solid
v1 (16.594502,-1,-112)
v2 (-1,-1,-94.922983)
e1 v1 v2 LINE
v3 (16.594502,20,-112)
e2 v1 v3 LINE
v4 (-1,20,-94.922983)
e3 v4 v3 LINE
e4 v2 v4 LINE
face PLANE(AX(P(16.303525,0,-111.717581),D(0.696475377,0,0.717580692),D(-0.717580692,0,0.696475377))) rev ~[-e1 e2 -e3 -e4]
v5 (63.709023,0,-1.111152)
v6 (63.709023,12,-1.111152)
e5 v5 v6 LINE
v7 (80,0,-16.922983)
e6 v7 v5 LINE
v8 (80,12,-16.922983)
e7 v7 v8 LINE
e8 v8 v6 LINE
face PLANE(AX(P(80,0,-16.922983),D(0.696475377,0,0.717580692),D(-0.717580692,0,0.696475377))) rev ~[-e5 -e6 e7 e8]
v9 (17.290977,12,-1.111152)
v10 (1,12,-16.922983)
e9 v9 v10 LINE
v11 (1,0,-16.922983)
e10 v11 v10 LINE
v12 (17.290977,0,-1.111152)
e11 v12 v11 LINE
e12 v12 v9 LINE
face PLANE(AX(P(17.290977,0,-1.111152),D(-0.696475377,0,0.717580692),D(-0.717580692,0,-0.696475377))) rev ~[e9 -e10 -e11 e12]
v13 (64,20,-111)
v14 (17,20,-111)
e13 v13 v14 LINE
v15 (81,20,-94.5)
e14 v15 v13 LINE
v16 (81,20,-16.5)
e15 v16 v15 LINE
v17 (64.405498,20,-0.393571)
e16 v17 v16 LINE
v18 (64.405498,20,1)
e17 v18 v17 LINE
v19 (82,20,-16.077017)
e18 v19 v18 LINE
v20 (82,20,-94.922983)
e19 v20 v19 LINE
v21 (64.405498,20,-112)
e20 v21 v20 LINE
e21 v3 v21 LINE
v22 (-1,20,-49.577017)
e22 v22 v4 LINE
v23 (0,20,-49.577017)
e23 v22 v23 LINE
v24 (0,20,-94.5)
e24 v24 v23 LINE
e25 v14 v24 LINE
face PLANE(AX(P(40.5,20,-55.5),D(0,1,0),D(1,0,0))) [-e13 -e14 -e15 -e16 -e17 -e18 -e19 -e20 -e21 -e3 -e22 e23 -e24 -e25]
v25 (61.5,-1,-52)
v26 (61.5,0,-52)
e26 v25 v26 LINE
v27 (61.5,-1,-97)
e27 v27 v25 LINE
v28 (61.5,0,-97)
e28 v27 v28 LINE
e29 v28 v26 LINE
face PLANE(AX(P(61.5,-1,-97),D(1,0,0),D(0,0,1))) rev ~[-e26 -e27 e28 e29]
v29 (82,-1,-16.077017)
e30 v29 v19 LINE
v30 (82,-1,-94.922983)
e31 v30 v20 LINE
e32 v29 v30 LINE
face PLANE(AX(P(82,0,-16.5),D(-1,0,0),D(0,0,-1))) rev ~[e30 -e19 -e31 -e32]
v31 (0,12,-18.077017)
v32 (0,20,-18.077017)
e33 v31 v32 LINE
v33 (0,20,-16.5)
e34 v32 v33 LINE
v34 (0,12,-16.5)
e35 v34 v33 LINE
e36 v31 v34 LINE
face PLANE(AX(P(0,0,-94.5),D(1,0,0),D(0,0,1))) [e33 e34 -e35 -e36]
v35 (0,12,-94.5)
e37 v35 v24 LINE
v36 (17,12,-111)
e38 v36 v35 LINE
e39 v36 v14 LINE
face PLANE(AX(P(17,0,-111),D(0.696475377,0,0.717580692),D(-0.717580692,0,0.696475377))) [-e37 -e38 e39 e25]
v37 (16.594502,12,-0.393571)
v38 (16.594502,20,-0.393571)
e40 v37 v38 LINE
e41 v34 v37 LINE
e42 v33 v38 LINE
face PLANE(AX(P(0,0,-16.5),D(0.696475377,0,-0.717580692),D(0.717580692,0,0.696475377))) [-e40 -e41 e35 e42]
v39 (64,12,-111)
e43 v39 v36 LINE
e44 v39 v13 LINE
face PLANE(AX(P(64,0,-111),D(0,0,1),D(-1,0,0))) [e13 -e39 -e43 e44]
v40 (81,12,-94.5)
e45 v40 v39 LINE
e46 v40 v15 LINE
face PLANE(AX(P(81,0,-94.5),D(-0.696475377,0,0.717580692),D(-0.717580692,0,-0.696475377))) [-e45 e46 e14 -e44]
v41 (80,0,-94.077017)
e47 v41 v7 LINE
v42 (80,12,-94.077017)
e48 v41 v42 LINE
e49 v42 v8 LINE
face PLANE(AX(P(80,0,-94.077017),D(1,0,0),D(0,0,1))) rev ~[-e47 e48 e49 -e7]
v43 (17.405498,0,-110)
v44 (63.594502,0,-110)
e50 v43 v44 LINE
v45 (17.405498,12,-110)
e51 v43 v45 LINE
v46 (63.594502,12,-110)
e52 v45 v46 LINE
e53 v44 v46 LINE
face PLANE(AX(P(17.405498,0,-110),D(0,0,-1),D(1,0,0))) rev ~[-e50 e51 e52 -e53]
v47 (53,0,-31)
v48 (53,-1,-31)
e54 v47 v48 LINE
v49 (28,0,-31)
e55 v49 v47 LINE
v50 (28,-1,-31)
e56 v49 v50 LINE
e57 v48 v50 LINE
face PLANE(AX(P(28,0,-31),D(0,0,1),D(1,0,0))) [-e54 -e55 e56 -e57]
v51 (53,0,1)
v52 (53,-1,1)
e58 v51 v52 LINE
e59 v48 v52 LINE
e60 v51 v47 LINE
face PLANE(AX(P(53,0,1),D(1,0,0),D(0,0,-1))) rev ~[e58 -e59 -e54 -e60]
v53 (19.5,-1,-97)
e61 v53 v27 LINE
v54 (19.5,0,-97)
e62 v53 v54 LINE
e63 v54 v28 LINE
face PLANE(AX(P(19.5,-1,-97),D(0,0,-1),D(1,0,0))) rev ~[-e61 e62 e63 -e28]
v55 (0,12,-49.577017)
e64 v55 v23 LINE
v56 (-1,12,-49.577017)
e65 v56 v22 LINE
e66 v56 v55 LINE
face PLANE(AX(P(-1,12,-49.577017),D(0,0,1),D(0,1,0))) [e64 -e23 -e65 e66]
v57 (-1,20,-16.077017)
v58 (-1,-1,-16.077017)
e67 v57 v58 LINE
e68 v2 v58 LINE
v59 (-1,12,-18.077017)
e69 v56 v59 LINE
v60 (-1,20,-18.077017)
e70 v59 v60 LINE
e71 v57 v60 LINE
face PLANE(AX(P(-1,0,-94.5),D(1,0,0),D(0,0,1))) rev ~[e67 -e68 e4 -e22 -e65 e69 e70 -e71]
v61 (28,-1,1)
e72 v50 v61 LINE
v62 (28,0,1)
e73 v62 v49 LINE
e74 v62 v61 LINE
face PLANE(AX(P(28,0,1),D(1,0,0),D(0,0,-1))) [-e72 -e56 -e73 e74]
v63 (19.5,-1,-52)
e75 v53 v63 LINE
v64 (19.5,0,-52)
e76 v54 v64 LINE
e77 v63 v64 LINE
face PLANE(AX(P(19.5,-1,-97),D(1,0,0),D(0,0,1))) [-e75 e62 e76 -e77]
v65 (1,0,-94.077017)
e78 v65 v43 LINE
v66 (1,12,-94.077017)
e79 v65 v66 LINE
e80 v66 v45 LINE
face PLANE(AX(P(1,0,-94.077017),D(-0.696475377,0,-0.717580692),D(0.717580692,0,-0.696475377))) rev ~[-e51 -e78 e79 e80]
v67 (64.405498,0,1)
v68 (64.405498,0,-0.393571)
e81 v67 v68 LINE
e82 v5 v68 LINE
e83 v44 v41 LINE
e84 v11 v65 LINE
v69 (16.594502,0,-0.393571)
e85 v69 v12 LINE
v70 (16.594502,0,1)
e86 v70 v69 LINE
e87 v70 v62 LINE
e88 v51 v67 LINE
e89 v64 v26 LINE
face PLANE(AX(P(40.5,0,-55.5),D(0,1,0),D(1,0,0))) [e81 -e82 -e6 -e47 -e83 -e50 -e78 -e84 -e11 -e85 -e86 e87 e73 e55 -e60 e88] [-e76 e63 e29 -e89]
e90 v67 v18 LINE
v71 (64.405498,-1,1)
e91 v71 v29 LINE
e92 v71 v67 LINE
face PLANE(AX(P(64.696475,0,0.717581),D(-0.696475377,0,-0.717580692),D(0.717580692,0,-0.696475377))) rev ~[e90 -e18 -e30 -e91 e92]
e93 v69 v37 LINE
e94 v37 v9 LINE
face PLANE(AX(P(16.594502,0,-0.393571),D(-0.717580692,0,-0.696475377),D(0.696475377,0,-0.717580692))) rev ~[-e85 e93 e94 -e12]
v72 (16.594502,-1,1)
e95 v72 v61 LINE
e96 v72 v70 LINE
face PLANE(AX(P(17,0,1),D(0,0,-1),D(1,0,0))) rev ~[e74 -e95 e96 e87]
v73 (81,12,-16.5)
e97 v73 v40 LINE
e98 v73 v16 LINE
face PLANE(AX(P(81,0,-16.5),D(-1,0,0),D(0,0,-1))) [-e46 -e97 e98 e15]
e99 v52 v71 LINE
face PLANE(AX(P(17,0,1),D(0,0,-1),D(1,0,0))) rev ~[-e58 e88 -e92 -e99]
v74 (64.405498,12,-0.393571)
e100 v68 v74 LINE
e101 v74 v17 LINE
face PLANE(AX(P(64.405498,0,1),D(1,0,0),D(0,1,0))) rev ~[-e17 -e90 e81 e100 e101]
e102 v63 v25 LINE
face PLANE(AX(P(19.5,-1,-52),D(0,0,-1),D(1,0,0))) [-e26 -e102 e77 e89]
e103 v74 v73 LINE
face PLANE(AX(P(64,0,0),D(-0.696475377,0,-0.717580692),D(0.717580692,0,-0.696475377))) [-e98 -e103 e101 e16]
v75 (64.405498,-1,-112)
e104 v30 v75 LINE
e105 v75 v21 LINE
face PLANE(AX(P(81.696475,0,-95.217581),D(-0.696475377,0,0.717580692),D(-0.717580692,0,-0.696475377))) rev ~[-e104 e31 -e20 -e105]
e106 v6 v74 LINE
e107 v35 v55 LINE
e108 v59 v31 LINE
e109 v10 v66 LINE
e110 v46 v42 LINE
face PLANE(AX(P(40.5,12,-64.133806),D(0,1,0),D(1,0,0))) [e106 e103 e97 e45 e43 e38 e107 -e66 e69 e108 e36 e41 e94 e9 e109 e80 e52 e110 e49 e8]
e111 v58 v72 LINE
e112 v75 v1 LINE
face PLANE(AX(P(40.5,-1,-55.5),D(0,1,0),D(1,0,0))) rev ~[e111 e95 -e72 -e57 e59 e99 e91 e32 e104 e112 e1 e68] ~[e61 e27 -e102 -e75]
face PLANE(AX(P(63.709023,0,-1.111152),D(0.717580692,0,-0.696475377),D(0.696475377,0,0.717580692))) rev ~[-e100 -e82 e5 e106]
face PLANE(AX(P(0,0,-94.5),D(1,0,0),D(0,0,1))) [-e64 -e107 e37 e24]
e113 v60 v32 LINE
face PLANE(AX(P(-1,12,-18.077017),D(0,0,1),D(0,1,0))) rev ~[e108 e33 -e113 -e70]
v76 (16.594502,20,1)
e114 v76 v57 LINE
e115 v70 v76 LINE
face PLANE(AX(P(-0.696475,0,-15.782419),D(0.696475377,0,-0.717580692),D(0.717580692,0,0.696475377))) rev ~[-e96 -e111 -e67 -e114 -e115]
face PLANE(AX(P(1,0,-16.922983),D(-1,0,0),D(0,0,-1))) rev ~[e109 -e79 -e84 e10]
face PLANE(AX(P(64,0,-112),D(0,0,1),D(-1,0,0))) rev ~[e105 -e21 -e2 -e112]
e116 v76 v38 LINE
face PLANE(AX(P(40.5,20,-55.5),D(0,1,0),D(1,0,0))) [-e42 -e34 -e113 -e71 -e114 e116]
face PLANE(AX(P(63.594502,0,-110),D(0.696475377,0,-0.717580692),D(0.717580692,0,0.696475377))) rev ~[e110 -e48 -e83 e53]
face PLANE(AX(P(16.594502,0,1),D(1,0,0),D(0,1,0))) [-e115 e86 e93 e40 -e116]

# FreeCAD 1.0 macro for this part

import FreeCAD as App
import Part
import Sketcher

V = App.Vector


def faces_at(feature, points):
    """Names of the faces that lie closest to the given points."""
    faces = feature.Shape.Faces
    near = lambda p: min(range(len(faces)), key=lambda i: faces[i].distToShape(Part.Vertex(*p))[0])
    return sorted({f"Face{near(p) + 1}" for p in points})

doc = App.newDocument("Part")
params = doc.addObject("Spreadsheet::Sheet", "Params")
for row, (alias, value) in enumerate([
    ("sketch1_width", "47 mm"),
    ("sketch1_height", "78 mm"),
    ("pad1_length", "20 mm"),
    ("thickness_wall", "1 mm"),
    ("sketch2_height", "20 mm"),
    ("pocket1_length", "1.393571 mm"),
    ("sketch3_width", "25 mm"),
    ("sketch3_height", "32 mm"),
    ("sketch4_width", "8 mm"),
    ("sketch4_height", "31.5 mm"),
    ("sketch5_width", "47 mm"),
    ("sketch5_height", "78 mm"),
    ("sketch5_length", "1 mm"),
    ("pad2_length", "12 mm"),
    ("sketch6_width", "42 mm"),
    ("sketch6_height", "45 mm"),
], start=1):
    params.set(f"A{row}", alias)
    params.set(f"B{row}", "=" + value)
    params.setAlias(f"B{row}", alias)

body = doc.addObject("PartDesign::Body", "Body")

sketch1 = doc.addObject("Sketcher::SketchObject", "Sketch")
body.addObject(sketch1)
sketch1.AttachmentSupport = (doc.XZ_Plane, [""])
sketch1.MapMode = "FlatFace"
sketch1.addGeometry(Part.LineSegment(V(0, -16, 0), V(17, 0, 0)), False)
sketch1.addGeometry(Part.LineSegment(V(17, 0, 0), V(64, 0, 0)), False)
sketch1.addGeometry(Part.LineSegment(V(64, 0, 0), V(81, -16, 0)), False)
sketch1.addGeometry(Part.LineSegment(V(81, -16, 0), V(81, -94, 0)), False)
sketch1.addGeometry(Part.LineSegment(V(81, -94, 0), V(64, -111, 0)), False)
sketch1.addGeometry(Part.LineSegment(V(64, -111, 0), V(17, -111, 0)), False)
sketch1.addGeometry(Part.LineSegment(V(17, -111, 0), V(0, -94, 0)), False)
sketch1.addGeometry(Part.LineSegment(V(0, -94, 0), V(0, -16, 0)), False)
sketch1.addConstraint(Sketcher.Constraint("Coincident", 0, 2, 1, 1))
sketch1.addConstraint(Sketcher.Constraint("Coincident", 1, 2, 2, 1))
sketch1.addConstraint(Sketcher.Constraint("Coincident", 2, 2, 3, 1))
sketch1.addConstraint(Sketcher.Constraint("Coincident", 3, 2, 4, 1))
sketch1.addConstraint(Sketcher.Constraint("Coincident", 4, 2, 5, 1))
sketch1.addConstraint(Sketcher.Constraint("Coincident", 5, 2, 6, 1))
sketch1.addConstraint(Sketcher.Constraint("Coincident", 6, 2, 7, 1))
sketch1.addConstraint(Sketcher.Constraint("Coincident", 7, 2, 0, 1))
sketch1.addConstraint(Sketcher.Constraint("Horizontal", 1))
sketch1.addConstraint(Sketcher.Constraint("Vertical", 3))
sketch1.addConstraint(Sketcher.Constraint("Horizontal", 5))
sketch1.addConstraint(Sketcher.Constraint("Vertical", 7))
sketch1.addConstraint(Sketcher.Constraint("PointOnObject", 0, 2, -1))
sketch1.addConstraint(Sketcher.Constraint("PointOnObject", 6, 2, -2))
sketch1.addConstraint(Sketcher.Constraint("Parallel", 0, 4))
sketch1.addConstraint(Sketcher.Constraint("Parallel", 2, 6))
sketch1.addConstraint(Sketcher.Constraint("Horizontal", 3, 2, 6, 2))
sketch1.addConstraint(Sketcher.Constraint("Horizontal", 2, 2, 7, 2))
sketch1.addConstraint(Sketcher.Constraint("Vertical", 1, 2, 4, 2))
sketch1.addConstraint(Sketcher.Constraint("Vertical", 0, 2, 5, 2))
sketch1.addConstraint(Sketcher.Constraint("DistanceX", 1, 1, 1, 2, 47.0))
sketch1.addConstraint(Sketcher.Constraint("DistanceY", 3, 2, 3, 1, 78.0))
sketch1.addConstraint(Sketcher.Constraint("DistanceX", -1, 1, 0, 2, 17.0))
sketch1.addConstraint(Sketcher.Constraint("DistanceY", 4, 2, -1, 1, 111.0))
sketch1.setExpression("Constraints[20]", "Params.sketch1_width")
sketch1.setExpression("Constraints[21]", "Params.sketch1_height")
pad1 = doc.addObject("PartDesign::Pad", "Pad")
body.addObject(pad1)
pad1.Profile = sketch1
pad1.setExpression("Length", "Params.pad1_length")
pad1.Reversed = True
doc.recompute()

thickness = doc.addObject("PartDesign::Thickness", "Thickness")
body.addObject(thickness)
thickness.Base = (pad1, faces_at(pad1, [(40.5, 20, -55.5)]))
thickness.setExpression("Value", "Params.thickness_wall")
thickness.Reversed = False
thickness.Join = "Intersection"

sketch2 = doc.addObject("Sketcher::SketchObject", "Sketch001")
body.addObject(sketch2)
sketch2.AttachmentSupport = (doc.XY_Plane, [""])
sketch2.MapMode = "FlatFace"
sketch2.AttachmentOffset = App.Placement(V(0, 0, 1), App.Rotation())
sketch2.addGeometry(Part.LineSegment(V(17, 20, 0), V(17, 0, 0)), False)
sketch2.addGeometry(Part.LineSegment(V(17, 0, 0), V(64, 0, 0)), False)
sketch2.addGeometry(Part.LineSegment(V(64, 0, 0), V(64, 20, 0)), False)
sketch2.addGeometry(Part.LineSegment(V(64, 20, 0), V(17, 20, 0)), False)
sketch2.addConstraint(Sketcher.Constraint("Coincident", 0, 2, 1, 1))
sketch2.addConstraint(Sketcher.Constraint("Coincident", 1, 2, 2, 1))
sketch2.addConstraint(Sketcher.Constraint("Coincident", 2, 2, 3, 1))
sketch2.addConstraint(Sketcher.Constraint("Coincident", 3, 2, 0, 1))
sketch2.addConstraint(Sketcher.Constraint("Vertical", 0))
sketch2.addConstraint(Sketcher.Constraint("Horizontal", 1))
sketch2.addConstraint(Sketcher.Constraint("Vertical", 2))
sketch2.addConstraint(Sketcher.Constraint("Horizontal", 3))
sketch2.addConstraint(Sketcher.Constraint("PointOnObject", 0, 2, -1))
sketch2.addConstraint(Sketcher.Constraint("DistanceY", 0, 2, 0, 1, 20.0))
sketch2.addConstraint(Sketcher.Constraint("DistanceX", 1, 1, 1, 2, 47.810996))
sketch2.addConstraint(Sketcher.Constraint("DistanceX", -1, 1, 0, 2, 16.594502))
sketch2.setExpression("Constraints[9]", "Params.sketch2_height")
pocket1 = doc.addObject("PartDesign::Pocket", "Pocket")
body.addObject(pocket1)
pocket1.Profile = sketch2
pocket1.setExpression("Length", "Params.pocket1_length")

sketch3 = doc.addObject("Sketcher::SketchObject", "Sketch002")
body.addObject(sketch3)
sketch3.AttachmentSupport = (doc.XZ_Plane, [""])
sketch3.MapMode = "FlatFace"
sketch3.addGeometry(Part.LineSegment(V(28, -31, 0), V(28, 1, 0)), False)
sketch3.addGeometry(Part.LineSegment(V(28, 1, 0), V(53, 1, 0)), False)
sketch3.addGeometry(Part.LineSegment(V(53, 1, 0), V(53, -31, 0)), False)
sketch3.addGeometry(Part.LineSegment(V(53, -31, 0), V(28, -31, 0)), False)
sketch3.addConstraint(Sketcher.Constraint("Coincident", 0, 2, 1, 1))
sketch3.addConstraint(Sketcher.Constraint("Coincident", 1, 2, 2, 1))
sketch3.addConstraint(Sketcher.Constraint("Coincident", 2, 2, 3, 1))
sketch3.addConstraint(Sketcher.Constraint("Coincident", 3, 2, 0, 1))
sketch3.addConstraint(Sketcher.Constraint("Vertical", 0))
sketch3.addConstraint(Sketcher.Constraint("Horizontal", 1))
sketch3.addConstraint(Sketcher.Constraint("Vertical", 2))
sketch3.addConstraint(Sketcher.Constraint("Horizontal", 3))
sketch3.addConstraint(Sketcher.Constraint("DistanceX", 1, 1, 1, 2, 25.0))
sketch3.addConstraint(Sketcher.Constraint("DistanceY", 0, 1, 0, 2, 32.0))
sketch3.addConstraint(Sketcher.Constraint("DistanceX", -1, 1, 0, 2, 28.0))
sketch3.addConstraint(Sketcher.Constraint("DistanceY", -1, 1, 0, 2, 1.0))
sketch3.setExpression("Constraints[8]", "Params.sketch3_width")
sketch3.setExpression("Constraints[9]", "Params.sketch3_height")
pocket2 = doc.addObject("PartDesign::Pocket", "Pocket001")
body.addObject(pocket2)
pocket2.Profile = sketch3
pocket2.Type = "UpToFirst"
pocket2.Reversed = True

sketch4 = doc.addObject("Sketcher::SketchObject", "Sketch003")
body.addObject(sketch4)
sketch4.AttachmentSupport = (doc.YZ_Plane, [""])
sketch4.MapMode = "FlatFace"
sketch4.AttachmentOffset = App.Placement(V(0, 0, -1), App.Rotation())
sketch4.addGeometry(Part.LineSegment(V(20, -50, 0), V(12, -50, 0)), False)
sketch4.addGeometry(Part.LineSegment(V(12, -50, 0), V(12, -18, 0)), False)
sketch4.addGeometry(Part.LineSegment(V(12, -18, 0), V(20, -18, 0)), False)
sketch4.addGeometry(Part.LineSegment(V(20, -18, 0), V(20, -50, 0)), False)
sketch4.addConstraint(Sketcher.Constraint("Coincident", 0, 2, 1, 1))
sketch4.addConstraint(Sketcher.Constraint("Coincident", 1, 2, 2, 1))
sketch4.addConstraint(Sketcher.Constraint("Coincident", 2, 2, 3, 1))
sketch4.addConstraint(Sketcher.Constraint("Coincident", 3, 2, 0, 1))
sketch4.addConstraint(Sketcher.Constraint("Horizontal", 0))
sketch4.addConstraint(Sketcher.Constraint("Vertical", 1))
sketch4.addConstraint(Sketcher.Constraint("Horizontal", 2))
sketch4.addConstraint(Sketcher.Constraint("Vertical", 3))
sketch4.addConstraint(Sketcher.Constraint("DistanceX", 0, 2, 0, 1, 8.0))
sketch4.addConstraint(Sketcher.Constraint("DistanceY", 1, 1, 1, 2, 31.5))
sketch4.addConstraint(Sketcher.Constraint("DistanceX", -1, 1, 0, 2, 12.0))
sketch4.addConstraint(Sketcher.Constraint("DistanceY", 0, 2, -1, 1, 49.577017))
sketch4.setExpression("Constraints[8]", "Params.sketch4_width")
sketch4.setExpression("Constraints[9]", "Params.sketch4_height")
pocket3 = doc.addObject("PartDesign::Pocket", "Pocket002")
body.addObject(pocket3)
pocket3.Profile = sketch4
pocket3.Type = "UpToFirst"
pocket3.Reversed = True

sketch5 = doc.addObject("Sketcher::SketchObject", "Sketch004")
body.addObject(sketch5)
sketch5.AttachmentSupport = (doc.XZ_Plane, [""])
sketch5.MapMode = "FlatFace"
sketch5.addGeometry(Part.LineSegment(V(16.6, -0.4, 0), V(17.3, -1.1, 0)), False)
sketch5.addGeometry(Part.LineSegment(V(17.3, -1.1, 0), V(1, -16.9, 0)), False)
sketch5.addGeometry(Part.LineSegment(V(1, -16.9, 0), V(1, -94.1, 0)), False)
sketch5.addGeometry(Part.LineSegment(V(1, -94.1, 0), V(17.4, -110, 0)), False)
sketch5.addGeometry(Part.LineSegment(V(17.4, -110, 0), V(63.6, -110, 0)), False)
sketch5.addGeometry(Part.LineSegment(V(63.6, -110, 0), V(80, -94.1, 0)), False)
sketch5.addGeometry(Part.LineSegment(V(80, -94.1, 0), V(80, -16.9, 0)), False)
sketch5.addGeometry(Part.LineSegment(V(80, -16.9, 0), V(63.7, -1.1, 0)), False)
sketch5.addGeometry(Part.LineSegment(V(63.7, -1.1, 0), V(64.4, -0.4, 0)), False)
sketch5.addGeometry(Part.LineSegment(V(64.4, -0.4, 0), V(81, -16.5, 0)), False)
sketch5.addGeometry(Part.LineSegment(V(81, -16.5, 0), V(81, -94.5, 0)), False)
sketch5.addGeometry(Part.LineSegment(V(81, -94.5, 0), V(64, -111, 0)), False)
sketch5.addGeometry(Part.LineSegment(V(64, -111, 0), V(17, -111, 0)), False)
sketch5.addGeometry(Part.LineSegment(V(17, -111, 0), V(0, -94.5, 0)), False)
sketch5.addGeometry(Part.LineSegment(V(0, -94.5, 0), V(0, -16.5, 0)), False)
sketch5.addGeometry(Part.LineSegment(V(0, -16.5, 0), V(16.6, -0.4, 0)), False)
sketch5.addConstraint(Sketcher.Constraint("Coincident", 0, 2, 1, 1))
sketch5.addConstraint(Sketcher.Constraint("Coincident", 1, 2, 2, 1))
sketch5.addConstraint(Sketcher.Constraint("Coincident", 2, 2, 3, 1))
sketch5.addConstraint(Sketcher.Constraint("Coincident", 3, 2, 4, 1))
sketch5.addConstraint(Sketcher.Constraint("Coincident", 4, 2, 5, 1))
sketch5.addConstraint(Sketcher.Constraint("Coincident", 5, 2, 6, 1))
sketch5.addConstraint(Sketcher.Constraint("Coincident", 6, 2, 7, 1))
sketch5.addConstraint(Sketcher.Constraint("Coincident", 7, 2, 8, 1))
sketch5.addConstraint(Sketcher.Constraint("Coincident", 8, 2, 9, 1))
sketch5.addConstraint(Sketcher.Constraint("Coincident", 9, 2, 10, 1))
sketch5.addConstraint(Sketcher.Constraint("Coincident", 10, 2, 11, 1))
sketch5.addConstraint(Sketcher.Constraint("Coincident", 11, 2, 12, 1))
sketch5.addConstraint(Sketcher.Constraint("Coincident", 12, 2, 13, 1))
sketch5.addConstraint(Sketcher.Constraint("Coincident", 13, 2, 14, 1))
sketch5.addConstraint(Sketcher.Constraint("Coincident", 14, 2, 15, 1))
sketch5.addConstraint(Sketcher.Constraint("Coincident", 15, 2, 0, 1))
sketch5.addConstraint(Sketcher.Constraint("Vertical", 2))
sketch5.addConstraint(Sketcher.Constraint("Horizontal", 4))
sketch5.addConstraint(Sketcher.Constraint("Vertical", 6))
sketch5.addConstraint(Sketcher.Constraint("Vertical", 10))
sketch5.addConstraint(Sketcher.Constraint("Horizontal", 12))
sketch5.addConstraint(Sketcher.Constraint("Vertical", 14))
sketch5.addConstraint(Sketcher.Constraint("PointOnObject", 13, 2, -2))
sketch5.addConstraint(Sketcher.Constraint("Perpendicular", 0, 1))
sketch5.addConstraint(Sketcher.Constraint("Parallel", 1, 5))
sketch5.addConstraint(Sketcher.Constraint("Parallel", 3, 7))
sketch5.addConstraint(Sketcher.Constraint("Perpendicular", 7, 8))
sketch5.addConstraint(Sketcher.Constraint("Perpendicular", 8, 9))
sketch5.addConstraint(Sketcher.Constraint("Parallel", 5, 11))
sketch5.addConstraint(Sketcher.Constraint("Parallel", 9, 13))
sketch5.addConstraint(Sketcher.Constraint("Parallel", 11, 15))
sketch5.addConstraint(Sketcher.Constraint("Horizontal", 2, 2, 5, 2))
sketch5.addConstraint(Sketcher.Constraint("Horizontal", 1, 2, 6, 2))
sketch5.addConstraint(Sketcher.Constraint("Horizontal", 0, 2, 7, 2))
sketch5.addConstraint(Sketcher.Constraint("Horizontal", 10, 2, 13, 2))
sketch5.addConstraint(Sketcher.Constraint("Horizontal", 9, 2, 14, 2))
sketch5.addConstraint(Sketcher.Constraint("Horizontal", 8, 2, 15, 2))
sketch5.addConstraint(Sketcher.Constraint("Equal", 3, 5))
sketch5.addConstraint(Sketcher.Constraint("DistanceX", 12, 2, 12, 1, 47.0))
sketch5.addConstraint(Sketcher.Constraint("DistanceY", 10, 2, 10, 1, 78.0))
sketch5.addConstraint(Sketcher.Constraint("Distance", 0, 1.0))
sketch5.addConstraint(Sketcher.Constraint("DistanceX", -1, 1, 1, 2, 1.0))
sketch5.addConstraint(Sketcher.Constraint("DistanceY", 3, 2, -1, 1, 110.0))
sketch5.addConstraint(Sketcher.Constraint("DistanceX", -1, 1, 5, 2, 80.0))
sketch5.addConstraint(Sketcher.Constraint("DistanceY", 11, 2, -1, 1, 111.0))
sketch5.addConstraint(Sketcher.Constraint("DistanceY", 9, 2, -1, 1, 16.5))
sketch5.addConstraint(Sketcher.Constraint("Distance", 1, 22.702642))
sketch5.addConstraint(Sketcher.Constraint("DistanceX", 4, 1, 4, 2, 46.189004))
sketch5.setExpression("Constraints[38]", "Params.sketch5_width")
sketch5.setExpression("Constraints[39]", "Params.sketch5_height")
sketch5.setExpression("Constraints[40]", "Params.sketch5_length")
pad2 = doc.addObject("PartDesign::Pad", "Pad001")
body.addObject(pad2)
pad2.Profile = sketch5
pad2.setExpression("Length", "Params.pad2_length")
pad2.Reversed = True

sketch6 = doc.addObject("Sketcher::SketchObject", "Sketch005")
body.addObject(sketch6)
sketch6.AttachmentSupport = (doc.XZ_Plane, [""])
sketch6.MapMode = "FlatFace"
sketch6.AttachmentOffset = App.Placement(V(0, 0, 1), App.Rotation())
sketch6.addGeometry(Part.LineSegment(V(20, -52, 0), V(20, -97, 0)), False)
sketch6.addGeometry(Part.LineSegment(V(20, -97, 0), V(62, -97, 0)), False)
sketch6.addGeometry(Part.LineSegment(V(62, -97, 0), V(62, -52, 0)), False)
sketch6.addGeometry(Part.LineSegment(V(62, -52, 0), V(20, -52, 0)), False)
sketch6.addConstraint(Sketcher.Constraint("Coincident", 0, 2, 1, 1))
sketch6.addConstraint(Sketcher.Constraint("Coincident", 1, 2, 2, 1))
sketch6.addConstraint(Sketcher.Constraint("Coincident", 2, 2, 3, 1))
sketch6.addConstraint(Sketcher.Constraint("Coincident", 3, 2, 0, 1))
sketch6.addConstraint(Sketcher.Constraint("Vertical", 0))
sketch6.addConstraint(Sketcher.Constraint("Horizontal", 1))
sketch6.addConstraint(Sketcher.Constraint("Vertical", 2))
sketch6.addConstraint(Sketcher.Constraint("Horizontal", 3))
sketch6.addConstraint(Sketcher.Constraint("DistanceX", 1, 1, 1, 2, 42.0))
sketch6.addConstraint(Sketcher.Constraint("DistanceY", 0, 2, 0, 1, 45.0))
sketch6.addConstraint(Sketcher.Constraint("DistanceY", 0, 2, -1, 1, 97.0))
sketch6.addConstraint(Sketcher.Constraint("DistanceX", -1, 1, 0, 2, 19.5))
sketch6.setExpression("Constraints[8]", "Params.sketch6_width")
sketch6.setExpression("Constraints[9]", "Params.sketch6_height")
pocket4 = doc.addObject("PartDesign::Pocket", "Pocket003")
body.addObject(pocket4)
pocket4.Profile = sketch6
pocket4.Type = "UpToFirst"

doc.recompute()
